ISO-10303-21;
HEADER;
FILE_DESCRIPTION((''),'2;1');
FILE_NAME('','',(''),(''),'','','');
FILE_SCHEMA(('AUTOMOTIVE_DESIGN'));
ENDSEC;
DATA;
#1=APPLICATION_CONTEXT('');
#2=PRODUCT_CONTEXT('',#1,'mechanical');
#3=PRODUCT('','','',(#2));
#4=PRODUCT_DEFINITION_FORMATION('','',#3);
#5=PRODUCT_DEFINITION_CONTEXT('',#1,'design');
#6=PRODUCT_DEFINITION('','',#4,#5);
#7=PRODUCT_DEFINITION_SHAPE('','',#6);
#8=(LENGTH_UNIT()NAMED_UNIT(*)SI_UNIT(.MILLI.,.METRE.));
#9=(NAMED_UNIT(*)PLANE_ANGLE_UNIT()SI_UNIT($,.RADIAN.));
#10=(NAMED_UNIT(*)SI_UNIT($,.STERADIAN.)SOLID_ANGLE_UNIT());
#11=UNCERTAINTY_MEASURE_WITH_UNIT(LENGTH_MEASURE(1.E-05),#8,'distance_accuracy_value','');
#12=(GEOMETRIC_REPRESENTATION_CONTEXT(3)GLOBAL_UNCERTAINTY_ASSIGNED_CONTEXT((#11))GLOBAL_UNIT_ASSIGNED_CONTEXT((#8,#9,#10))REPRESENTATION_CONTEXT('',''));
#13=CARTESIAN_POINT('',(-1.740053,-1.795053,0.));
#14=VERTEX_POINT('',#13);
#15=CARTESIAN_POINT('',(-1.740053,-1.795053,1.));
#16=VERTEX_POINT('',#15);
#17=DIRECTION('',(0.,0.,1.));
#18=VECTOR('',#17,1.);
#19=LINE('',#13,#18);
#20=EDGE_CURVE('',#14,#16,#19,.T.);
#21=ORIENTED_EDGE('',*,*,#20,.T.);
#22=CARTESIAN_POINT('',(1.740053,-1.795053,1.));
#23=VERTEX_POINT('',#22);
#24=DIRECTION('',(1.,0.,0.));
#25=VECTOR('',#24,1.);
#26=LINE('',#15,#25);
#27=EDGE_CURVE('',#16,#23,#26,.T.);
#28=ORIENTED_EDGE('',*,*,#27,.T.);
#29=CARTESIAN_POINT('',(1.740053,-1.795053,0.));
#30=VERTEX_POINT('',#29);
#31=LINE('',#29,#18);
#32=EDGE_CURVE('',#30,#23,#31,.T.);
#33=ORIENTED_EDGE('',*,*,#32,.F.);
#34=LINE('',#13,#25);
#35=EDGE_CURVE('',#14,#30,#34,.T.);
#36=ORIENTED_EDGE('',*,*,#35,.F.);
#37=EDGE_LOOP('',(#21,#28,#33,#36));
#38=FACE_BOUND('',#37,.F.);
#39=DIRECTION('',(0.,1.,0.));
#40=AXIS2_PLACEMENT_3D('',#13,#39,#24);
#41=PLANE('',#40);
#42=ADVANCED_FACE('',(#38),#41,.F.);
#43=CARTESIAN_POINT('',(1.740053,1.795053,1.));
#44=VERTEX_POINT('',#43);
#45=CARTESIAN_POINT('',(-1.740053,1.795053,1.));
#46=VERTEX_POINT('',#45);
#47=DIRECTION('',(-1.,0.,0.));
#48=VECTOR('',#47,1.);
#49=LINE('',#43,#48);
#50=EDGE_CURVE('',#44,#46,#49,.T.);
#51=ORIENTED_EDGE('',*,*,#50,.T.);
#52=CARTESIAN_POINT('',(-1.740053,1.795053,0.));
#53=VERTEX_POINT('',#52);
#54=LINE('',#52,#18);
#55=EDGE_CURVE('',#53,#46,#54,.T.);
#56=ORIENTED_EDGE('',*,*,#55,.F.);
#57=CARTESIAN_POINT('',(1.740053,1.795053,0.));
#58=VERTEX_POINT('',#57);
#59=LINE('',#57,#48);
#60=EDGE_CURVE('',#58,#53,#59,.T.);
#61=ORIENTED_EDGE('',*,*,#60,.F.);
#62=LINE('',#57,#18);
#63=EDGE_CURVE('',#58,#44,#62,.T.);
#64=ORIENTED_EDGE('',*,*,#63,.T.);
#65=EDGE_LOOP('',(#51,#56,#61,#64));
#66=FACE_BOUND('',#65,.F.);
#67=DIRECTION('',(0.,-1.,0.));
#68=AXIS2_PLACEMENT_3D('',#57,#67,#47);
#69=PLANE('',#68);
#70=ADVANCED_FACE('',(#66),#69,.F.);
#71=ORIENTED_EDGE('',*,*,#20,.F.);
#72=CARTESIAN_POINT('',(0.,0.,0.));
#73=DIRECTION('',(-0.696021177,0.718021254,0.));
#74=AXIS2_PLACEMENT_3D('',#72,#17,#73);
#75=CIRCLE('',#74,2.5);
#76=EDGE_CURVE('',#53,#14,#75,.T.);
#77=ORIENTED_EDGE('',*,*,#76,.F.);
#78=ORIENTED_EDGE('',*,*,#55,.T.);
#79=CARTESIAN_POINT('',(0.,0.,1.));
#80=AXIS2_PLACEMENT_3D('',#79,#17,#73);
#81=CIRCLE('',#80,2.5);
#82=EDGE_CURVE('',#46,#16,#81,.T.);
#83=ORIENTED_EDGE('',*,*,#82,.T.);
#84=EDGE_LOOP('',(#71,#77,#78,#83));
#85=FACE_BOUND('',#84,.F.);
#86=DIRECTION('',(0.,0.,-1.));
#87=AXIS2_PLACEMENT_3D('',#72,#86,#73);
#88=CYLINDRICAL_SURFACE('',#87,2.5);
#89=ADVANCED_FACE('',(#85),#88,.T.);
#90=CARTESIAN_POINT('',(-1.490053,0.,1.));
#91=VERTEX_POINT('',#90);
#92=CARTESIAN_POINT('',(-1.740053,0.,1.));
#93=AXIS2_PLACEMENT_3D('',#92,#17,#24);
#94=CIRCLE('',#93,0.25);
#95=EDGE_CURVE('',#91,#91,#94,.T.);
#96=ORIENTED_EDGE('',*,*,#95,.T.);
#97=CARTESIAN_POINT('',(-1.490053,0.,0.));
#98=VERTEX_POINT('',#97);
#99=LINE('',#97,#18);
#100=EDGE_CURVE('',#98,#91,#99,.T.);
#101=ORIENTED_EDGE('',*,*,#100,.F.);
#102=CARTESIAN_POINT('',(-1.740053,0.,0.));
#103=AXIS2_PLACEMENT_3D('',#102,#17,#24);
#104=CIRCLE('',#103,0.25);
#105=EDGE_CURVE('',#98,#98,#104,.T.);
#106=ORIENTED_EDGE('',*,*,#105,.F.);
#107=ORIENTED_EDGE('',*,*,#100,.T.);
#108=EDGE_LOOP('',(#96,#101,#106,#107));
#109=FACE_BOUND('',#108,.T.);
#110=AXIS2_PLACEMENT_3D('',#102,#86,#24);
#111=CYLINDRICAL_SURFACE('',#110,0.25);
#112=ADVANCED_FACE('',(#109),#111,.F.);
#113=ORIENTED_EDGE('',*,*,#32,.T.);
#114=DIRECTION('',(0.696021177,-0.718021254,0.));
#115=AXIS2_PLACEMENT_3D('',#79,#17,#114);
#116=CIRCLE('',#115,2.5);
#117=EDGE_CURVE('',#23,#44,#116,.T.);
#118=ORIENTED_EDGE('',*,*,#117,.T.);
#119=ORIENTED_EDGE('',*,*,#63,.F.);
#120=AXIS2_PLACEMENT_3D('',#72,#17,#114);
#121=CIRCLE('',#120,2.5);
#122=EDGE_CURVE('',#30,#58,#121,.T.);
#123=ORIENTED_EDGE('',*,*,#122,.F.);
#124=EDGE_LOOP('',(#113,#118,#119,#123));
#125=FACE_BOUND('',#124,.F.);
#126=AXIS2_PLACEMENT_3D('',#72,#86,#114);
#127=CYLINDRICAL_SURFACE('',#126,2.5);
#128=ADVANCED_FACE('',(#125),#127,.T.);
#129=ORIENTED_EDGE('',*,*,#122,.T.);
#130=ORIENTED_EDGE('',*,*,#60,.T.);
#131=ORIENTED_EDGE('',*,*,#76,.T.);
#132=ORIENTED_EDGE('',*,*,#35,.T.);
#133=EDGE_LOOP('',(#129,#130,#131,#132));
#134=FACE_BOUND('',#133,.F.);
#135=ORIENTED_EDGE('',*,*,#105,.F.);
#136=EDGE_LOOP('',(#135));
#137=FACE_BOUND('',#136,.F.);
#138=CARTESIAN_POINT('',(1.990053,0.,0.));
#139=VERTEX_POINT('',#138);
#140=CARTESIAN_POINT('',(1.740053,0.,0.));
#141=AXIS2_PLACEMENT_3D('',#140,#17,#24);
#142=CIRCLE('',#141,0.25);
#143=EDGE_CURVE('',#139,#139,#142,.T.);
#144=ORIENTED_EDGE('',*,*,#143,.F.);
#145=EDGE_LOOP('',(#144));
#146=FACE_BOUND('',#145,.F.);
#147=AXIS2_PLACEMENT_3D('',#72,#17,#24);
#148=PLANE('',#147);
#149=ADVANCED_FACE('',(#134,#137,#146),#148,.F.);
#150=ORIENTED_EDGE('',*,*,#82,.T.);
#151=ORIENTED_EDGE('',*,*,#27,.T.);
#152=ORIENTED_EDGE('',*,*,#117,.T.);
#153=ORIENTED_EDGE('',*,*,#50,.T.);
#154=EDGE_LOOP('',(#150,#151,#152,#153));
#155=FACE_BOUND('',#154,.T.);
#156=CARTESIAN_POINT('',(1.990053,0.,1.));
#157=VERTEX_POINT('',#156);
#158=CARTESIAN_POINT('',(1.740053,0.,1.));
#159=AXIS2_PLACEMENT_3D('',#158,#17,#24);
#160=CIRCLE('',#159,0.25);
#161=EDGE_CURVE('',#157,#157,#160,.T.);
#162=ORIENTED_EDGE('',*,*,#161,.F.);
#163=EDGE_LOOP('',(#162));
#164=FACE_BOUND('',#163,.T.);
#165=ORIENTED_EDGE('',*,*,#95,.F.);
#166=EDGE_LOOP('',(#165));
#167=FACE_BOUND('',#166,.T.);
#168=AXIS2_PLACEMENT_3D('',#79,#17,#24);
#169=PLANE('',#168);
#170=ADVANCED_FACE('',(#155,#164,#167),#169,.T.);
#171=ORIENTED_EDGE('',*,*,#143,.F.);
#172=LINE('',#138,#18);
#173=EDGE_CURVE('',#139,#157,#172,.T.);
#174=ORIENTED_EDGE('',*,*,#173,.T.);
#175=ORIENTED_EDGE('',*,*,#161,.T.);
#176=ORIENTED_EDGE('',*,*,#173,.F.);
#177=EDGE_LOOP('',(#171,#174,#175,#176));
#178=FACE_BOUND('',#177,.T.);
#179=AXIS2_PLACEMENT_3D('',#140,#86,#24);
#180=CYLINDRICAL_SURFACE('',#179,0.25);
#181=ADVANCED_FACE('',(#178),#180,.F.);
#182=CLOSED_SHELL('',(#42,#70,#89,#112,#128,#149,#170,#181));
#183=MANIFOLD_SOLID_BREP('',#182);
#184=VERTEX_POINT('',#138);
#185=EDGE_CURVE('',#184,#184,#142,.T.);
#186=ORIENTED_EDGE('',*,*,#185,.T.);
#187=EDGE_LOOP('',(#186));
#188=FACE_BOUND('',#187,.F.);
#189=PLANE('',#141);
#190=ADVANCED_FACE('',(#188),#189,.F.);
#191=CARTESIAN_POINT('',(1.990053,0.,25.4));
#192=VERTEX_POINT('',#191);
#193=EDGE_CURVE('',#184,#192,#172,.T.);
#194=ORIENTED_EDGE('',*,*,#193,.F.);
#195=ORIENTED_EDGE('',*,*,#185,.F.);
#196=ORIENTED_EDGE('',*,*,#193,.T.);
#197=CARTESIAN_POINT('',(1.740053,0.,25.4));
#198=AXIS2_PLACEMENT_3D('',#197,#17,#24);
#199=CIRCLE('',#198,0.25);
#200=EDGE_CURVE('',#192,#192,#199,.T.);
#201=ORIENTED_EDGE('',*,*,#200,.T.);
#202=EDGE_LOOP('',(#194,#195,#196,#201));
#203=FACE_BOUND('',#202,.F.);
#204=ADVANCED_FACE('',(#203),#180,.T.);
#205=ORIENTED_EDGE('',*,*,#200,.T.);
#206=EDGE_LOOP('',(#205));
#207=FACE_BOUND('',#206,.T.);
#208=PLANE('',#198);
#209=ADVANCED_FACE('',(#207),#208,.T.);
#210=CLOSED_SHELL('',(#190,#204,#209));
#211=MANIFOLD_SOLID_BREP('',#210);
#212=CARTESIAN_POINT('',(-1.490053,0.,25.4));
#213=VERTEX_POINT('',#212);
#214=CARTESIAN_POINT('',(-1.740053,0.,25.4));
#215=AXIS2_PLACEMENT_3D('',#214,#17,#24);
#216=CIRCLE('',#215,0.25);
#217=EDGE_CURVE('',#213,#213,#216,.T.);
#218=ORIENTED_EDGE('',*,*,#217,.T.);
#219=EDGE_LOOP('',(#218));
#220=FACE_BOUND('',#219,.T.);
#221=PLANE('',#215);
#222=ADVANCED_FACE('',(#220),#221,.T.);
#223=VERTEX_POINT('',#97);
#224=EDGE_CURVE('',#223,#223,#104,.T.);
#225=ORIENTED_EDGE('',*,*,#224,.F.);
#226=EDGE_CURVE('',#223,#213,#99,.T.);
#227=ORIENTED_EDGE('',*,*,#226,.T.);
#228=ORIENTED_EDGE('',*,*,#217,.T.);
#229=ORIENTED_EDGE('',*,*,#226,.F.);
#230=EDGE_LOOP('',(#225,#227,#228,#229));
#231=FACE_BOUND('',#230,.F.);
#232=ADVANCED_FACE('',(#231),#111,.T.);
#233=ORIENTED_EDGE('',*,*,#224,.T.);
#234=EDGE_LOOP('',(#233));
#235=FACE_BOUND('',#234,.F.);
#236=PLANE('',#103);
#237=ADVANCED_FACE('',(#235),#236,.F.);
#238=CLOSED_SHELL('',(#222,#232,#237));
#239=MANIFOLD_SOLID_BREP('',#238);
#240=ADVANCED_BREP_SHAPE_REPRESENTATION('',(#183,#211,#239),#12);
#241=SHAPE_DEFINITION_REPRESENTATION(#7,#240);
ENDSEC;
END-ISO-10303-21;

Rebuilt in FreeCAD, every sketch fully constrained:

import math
import FreeCAD as App
import Part
import Sketcher

doc = App.newDocument("Part")
body = doc.addObject("PartDesign::Body", "Body")

# Sketch on XY plane
sketch1 = body.newObject("Sketcher::SketchObject", "Sketch")
sketch1.AttachmentSupport = (doc.getObject("XY_Plane"), [""])
sketch1.MapMode = "FlatFace"
sketch1.addGeometry([
    Part.LineSegment(App.Vector(1.74, 1.8, 0), App.Vector(-1.74, 1.8, 0)),  # 0
    Part.ArcOfCircle(Part.Circle(App.Vector(0, 0, 0), App.Vector(0, 0, 1), 2.5), math.radians(134), math.radians(226)),  # 1
    Part.LineSegment(App.Vector(-1.74, -1.8, 0), App.Vector(1.74, -1.8, 0)),  # 2
    Part.ArcOfCircle(Part.Circle(App.Vector(0, 0, 0), App.Vector(0, 0, 1), 2.5), math.radians(-46), math.radians(46)),  # 3
    Part.Circle(App.Vector(-1.74, 0, 0), App.Vector(0, 0, 1), 0.25),  # 4
    Part.Circle(App.Vector(1.74, 0, 0), App.Vector(0, 0, 1), 0.25),  # 5
], False)
sketch1.addConstraint([
    Sketcher.Constraint("Coincident", 0, 2, 1, 1),
    Sketcher.Constraint("Coincident", 1, 2, 2, 1),
    Sketcher.Constraint("Coincident", 2, 2, 3, 1),
    Sketcher.Constraint("Coincident", 3, 2, 0, 1),
    Sketcher.Constraint("Horizontal", 0),
    Sketcher.Constraint("Horizontal", 2),
    Sketcher.Constraint("Coincident", 1, 3, -1, 1),
    Sketcher.Constraint("Coincident", 3, 3, -1, 1),
    Sketcher.Constraint("Equal", 1, 3),
    Sketcher.Constraint("Equal", 4, 5),
    Sketcher.Constraint("Symmetric", 4, 3, 5, 3, -1, 1),
    Sketcher.Constraint("PointOnObject", 4, 3, -1),
    Sketcher.Constraint("Vertical", 4, 3, 0, 2),
    Sketcher.Constraint("Vertical", 0, 2, 1, 2),
    Sketcher.Constraint("Diameter", 4, 0.5),
    Sketcher.Constraint("Radius", 1, 2.5),
    Sketcher.Constraint("DistanceX", 0, 2, 0, 1, 3.480106),
])
pad1 = body.newObject("PartDesign::Pad", "Pad")
pad1.Profile = sketch1
pad1.Length = 1
body2 = doc.addObject("PartDesign::Body", "Body001")
body2.AllowCompound = True

# Sketch on XY plane
sketch2 = body2.newObject("Sketcher::SketchObject", "Sketch001")
sketch2.AttachmentSupport = (doc.getObject("XY_Plane001"), [""])
sketch2.MapMode = "FlatFace"
sketch2.addGeometry([
    Part.Circle(App.Vector(1.74, 0, 0), App.Vector(0, 0, 1), 0.25),
    Part.Circle(App.Vector(-1.74, 0, 0), App.Vector(0, 0, 1), 0.25),
], False)
sketch2.addConstraint([
    Sketcher.Constraint("Equal", 0, 1),
    Sketcher.Constraint("Symmetric", 0, 3, 1, 3, -1, 1),
    Sketcher.Constraint("PointOnObject", 0, 3, -1),
    Sketcher.Constraint("Diameter", 0, 0.5),
    Sketcher.Constraint("DistanceX", -1, 1, 0, 3, 1.740053),
])
pad2 = body2.newObject("PartDesign::Pad", "Pad001")
pad2.Profile = sketch2
pad2.Length = 25.4

doc.recompute()
